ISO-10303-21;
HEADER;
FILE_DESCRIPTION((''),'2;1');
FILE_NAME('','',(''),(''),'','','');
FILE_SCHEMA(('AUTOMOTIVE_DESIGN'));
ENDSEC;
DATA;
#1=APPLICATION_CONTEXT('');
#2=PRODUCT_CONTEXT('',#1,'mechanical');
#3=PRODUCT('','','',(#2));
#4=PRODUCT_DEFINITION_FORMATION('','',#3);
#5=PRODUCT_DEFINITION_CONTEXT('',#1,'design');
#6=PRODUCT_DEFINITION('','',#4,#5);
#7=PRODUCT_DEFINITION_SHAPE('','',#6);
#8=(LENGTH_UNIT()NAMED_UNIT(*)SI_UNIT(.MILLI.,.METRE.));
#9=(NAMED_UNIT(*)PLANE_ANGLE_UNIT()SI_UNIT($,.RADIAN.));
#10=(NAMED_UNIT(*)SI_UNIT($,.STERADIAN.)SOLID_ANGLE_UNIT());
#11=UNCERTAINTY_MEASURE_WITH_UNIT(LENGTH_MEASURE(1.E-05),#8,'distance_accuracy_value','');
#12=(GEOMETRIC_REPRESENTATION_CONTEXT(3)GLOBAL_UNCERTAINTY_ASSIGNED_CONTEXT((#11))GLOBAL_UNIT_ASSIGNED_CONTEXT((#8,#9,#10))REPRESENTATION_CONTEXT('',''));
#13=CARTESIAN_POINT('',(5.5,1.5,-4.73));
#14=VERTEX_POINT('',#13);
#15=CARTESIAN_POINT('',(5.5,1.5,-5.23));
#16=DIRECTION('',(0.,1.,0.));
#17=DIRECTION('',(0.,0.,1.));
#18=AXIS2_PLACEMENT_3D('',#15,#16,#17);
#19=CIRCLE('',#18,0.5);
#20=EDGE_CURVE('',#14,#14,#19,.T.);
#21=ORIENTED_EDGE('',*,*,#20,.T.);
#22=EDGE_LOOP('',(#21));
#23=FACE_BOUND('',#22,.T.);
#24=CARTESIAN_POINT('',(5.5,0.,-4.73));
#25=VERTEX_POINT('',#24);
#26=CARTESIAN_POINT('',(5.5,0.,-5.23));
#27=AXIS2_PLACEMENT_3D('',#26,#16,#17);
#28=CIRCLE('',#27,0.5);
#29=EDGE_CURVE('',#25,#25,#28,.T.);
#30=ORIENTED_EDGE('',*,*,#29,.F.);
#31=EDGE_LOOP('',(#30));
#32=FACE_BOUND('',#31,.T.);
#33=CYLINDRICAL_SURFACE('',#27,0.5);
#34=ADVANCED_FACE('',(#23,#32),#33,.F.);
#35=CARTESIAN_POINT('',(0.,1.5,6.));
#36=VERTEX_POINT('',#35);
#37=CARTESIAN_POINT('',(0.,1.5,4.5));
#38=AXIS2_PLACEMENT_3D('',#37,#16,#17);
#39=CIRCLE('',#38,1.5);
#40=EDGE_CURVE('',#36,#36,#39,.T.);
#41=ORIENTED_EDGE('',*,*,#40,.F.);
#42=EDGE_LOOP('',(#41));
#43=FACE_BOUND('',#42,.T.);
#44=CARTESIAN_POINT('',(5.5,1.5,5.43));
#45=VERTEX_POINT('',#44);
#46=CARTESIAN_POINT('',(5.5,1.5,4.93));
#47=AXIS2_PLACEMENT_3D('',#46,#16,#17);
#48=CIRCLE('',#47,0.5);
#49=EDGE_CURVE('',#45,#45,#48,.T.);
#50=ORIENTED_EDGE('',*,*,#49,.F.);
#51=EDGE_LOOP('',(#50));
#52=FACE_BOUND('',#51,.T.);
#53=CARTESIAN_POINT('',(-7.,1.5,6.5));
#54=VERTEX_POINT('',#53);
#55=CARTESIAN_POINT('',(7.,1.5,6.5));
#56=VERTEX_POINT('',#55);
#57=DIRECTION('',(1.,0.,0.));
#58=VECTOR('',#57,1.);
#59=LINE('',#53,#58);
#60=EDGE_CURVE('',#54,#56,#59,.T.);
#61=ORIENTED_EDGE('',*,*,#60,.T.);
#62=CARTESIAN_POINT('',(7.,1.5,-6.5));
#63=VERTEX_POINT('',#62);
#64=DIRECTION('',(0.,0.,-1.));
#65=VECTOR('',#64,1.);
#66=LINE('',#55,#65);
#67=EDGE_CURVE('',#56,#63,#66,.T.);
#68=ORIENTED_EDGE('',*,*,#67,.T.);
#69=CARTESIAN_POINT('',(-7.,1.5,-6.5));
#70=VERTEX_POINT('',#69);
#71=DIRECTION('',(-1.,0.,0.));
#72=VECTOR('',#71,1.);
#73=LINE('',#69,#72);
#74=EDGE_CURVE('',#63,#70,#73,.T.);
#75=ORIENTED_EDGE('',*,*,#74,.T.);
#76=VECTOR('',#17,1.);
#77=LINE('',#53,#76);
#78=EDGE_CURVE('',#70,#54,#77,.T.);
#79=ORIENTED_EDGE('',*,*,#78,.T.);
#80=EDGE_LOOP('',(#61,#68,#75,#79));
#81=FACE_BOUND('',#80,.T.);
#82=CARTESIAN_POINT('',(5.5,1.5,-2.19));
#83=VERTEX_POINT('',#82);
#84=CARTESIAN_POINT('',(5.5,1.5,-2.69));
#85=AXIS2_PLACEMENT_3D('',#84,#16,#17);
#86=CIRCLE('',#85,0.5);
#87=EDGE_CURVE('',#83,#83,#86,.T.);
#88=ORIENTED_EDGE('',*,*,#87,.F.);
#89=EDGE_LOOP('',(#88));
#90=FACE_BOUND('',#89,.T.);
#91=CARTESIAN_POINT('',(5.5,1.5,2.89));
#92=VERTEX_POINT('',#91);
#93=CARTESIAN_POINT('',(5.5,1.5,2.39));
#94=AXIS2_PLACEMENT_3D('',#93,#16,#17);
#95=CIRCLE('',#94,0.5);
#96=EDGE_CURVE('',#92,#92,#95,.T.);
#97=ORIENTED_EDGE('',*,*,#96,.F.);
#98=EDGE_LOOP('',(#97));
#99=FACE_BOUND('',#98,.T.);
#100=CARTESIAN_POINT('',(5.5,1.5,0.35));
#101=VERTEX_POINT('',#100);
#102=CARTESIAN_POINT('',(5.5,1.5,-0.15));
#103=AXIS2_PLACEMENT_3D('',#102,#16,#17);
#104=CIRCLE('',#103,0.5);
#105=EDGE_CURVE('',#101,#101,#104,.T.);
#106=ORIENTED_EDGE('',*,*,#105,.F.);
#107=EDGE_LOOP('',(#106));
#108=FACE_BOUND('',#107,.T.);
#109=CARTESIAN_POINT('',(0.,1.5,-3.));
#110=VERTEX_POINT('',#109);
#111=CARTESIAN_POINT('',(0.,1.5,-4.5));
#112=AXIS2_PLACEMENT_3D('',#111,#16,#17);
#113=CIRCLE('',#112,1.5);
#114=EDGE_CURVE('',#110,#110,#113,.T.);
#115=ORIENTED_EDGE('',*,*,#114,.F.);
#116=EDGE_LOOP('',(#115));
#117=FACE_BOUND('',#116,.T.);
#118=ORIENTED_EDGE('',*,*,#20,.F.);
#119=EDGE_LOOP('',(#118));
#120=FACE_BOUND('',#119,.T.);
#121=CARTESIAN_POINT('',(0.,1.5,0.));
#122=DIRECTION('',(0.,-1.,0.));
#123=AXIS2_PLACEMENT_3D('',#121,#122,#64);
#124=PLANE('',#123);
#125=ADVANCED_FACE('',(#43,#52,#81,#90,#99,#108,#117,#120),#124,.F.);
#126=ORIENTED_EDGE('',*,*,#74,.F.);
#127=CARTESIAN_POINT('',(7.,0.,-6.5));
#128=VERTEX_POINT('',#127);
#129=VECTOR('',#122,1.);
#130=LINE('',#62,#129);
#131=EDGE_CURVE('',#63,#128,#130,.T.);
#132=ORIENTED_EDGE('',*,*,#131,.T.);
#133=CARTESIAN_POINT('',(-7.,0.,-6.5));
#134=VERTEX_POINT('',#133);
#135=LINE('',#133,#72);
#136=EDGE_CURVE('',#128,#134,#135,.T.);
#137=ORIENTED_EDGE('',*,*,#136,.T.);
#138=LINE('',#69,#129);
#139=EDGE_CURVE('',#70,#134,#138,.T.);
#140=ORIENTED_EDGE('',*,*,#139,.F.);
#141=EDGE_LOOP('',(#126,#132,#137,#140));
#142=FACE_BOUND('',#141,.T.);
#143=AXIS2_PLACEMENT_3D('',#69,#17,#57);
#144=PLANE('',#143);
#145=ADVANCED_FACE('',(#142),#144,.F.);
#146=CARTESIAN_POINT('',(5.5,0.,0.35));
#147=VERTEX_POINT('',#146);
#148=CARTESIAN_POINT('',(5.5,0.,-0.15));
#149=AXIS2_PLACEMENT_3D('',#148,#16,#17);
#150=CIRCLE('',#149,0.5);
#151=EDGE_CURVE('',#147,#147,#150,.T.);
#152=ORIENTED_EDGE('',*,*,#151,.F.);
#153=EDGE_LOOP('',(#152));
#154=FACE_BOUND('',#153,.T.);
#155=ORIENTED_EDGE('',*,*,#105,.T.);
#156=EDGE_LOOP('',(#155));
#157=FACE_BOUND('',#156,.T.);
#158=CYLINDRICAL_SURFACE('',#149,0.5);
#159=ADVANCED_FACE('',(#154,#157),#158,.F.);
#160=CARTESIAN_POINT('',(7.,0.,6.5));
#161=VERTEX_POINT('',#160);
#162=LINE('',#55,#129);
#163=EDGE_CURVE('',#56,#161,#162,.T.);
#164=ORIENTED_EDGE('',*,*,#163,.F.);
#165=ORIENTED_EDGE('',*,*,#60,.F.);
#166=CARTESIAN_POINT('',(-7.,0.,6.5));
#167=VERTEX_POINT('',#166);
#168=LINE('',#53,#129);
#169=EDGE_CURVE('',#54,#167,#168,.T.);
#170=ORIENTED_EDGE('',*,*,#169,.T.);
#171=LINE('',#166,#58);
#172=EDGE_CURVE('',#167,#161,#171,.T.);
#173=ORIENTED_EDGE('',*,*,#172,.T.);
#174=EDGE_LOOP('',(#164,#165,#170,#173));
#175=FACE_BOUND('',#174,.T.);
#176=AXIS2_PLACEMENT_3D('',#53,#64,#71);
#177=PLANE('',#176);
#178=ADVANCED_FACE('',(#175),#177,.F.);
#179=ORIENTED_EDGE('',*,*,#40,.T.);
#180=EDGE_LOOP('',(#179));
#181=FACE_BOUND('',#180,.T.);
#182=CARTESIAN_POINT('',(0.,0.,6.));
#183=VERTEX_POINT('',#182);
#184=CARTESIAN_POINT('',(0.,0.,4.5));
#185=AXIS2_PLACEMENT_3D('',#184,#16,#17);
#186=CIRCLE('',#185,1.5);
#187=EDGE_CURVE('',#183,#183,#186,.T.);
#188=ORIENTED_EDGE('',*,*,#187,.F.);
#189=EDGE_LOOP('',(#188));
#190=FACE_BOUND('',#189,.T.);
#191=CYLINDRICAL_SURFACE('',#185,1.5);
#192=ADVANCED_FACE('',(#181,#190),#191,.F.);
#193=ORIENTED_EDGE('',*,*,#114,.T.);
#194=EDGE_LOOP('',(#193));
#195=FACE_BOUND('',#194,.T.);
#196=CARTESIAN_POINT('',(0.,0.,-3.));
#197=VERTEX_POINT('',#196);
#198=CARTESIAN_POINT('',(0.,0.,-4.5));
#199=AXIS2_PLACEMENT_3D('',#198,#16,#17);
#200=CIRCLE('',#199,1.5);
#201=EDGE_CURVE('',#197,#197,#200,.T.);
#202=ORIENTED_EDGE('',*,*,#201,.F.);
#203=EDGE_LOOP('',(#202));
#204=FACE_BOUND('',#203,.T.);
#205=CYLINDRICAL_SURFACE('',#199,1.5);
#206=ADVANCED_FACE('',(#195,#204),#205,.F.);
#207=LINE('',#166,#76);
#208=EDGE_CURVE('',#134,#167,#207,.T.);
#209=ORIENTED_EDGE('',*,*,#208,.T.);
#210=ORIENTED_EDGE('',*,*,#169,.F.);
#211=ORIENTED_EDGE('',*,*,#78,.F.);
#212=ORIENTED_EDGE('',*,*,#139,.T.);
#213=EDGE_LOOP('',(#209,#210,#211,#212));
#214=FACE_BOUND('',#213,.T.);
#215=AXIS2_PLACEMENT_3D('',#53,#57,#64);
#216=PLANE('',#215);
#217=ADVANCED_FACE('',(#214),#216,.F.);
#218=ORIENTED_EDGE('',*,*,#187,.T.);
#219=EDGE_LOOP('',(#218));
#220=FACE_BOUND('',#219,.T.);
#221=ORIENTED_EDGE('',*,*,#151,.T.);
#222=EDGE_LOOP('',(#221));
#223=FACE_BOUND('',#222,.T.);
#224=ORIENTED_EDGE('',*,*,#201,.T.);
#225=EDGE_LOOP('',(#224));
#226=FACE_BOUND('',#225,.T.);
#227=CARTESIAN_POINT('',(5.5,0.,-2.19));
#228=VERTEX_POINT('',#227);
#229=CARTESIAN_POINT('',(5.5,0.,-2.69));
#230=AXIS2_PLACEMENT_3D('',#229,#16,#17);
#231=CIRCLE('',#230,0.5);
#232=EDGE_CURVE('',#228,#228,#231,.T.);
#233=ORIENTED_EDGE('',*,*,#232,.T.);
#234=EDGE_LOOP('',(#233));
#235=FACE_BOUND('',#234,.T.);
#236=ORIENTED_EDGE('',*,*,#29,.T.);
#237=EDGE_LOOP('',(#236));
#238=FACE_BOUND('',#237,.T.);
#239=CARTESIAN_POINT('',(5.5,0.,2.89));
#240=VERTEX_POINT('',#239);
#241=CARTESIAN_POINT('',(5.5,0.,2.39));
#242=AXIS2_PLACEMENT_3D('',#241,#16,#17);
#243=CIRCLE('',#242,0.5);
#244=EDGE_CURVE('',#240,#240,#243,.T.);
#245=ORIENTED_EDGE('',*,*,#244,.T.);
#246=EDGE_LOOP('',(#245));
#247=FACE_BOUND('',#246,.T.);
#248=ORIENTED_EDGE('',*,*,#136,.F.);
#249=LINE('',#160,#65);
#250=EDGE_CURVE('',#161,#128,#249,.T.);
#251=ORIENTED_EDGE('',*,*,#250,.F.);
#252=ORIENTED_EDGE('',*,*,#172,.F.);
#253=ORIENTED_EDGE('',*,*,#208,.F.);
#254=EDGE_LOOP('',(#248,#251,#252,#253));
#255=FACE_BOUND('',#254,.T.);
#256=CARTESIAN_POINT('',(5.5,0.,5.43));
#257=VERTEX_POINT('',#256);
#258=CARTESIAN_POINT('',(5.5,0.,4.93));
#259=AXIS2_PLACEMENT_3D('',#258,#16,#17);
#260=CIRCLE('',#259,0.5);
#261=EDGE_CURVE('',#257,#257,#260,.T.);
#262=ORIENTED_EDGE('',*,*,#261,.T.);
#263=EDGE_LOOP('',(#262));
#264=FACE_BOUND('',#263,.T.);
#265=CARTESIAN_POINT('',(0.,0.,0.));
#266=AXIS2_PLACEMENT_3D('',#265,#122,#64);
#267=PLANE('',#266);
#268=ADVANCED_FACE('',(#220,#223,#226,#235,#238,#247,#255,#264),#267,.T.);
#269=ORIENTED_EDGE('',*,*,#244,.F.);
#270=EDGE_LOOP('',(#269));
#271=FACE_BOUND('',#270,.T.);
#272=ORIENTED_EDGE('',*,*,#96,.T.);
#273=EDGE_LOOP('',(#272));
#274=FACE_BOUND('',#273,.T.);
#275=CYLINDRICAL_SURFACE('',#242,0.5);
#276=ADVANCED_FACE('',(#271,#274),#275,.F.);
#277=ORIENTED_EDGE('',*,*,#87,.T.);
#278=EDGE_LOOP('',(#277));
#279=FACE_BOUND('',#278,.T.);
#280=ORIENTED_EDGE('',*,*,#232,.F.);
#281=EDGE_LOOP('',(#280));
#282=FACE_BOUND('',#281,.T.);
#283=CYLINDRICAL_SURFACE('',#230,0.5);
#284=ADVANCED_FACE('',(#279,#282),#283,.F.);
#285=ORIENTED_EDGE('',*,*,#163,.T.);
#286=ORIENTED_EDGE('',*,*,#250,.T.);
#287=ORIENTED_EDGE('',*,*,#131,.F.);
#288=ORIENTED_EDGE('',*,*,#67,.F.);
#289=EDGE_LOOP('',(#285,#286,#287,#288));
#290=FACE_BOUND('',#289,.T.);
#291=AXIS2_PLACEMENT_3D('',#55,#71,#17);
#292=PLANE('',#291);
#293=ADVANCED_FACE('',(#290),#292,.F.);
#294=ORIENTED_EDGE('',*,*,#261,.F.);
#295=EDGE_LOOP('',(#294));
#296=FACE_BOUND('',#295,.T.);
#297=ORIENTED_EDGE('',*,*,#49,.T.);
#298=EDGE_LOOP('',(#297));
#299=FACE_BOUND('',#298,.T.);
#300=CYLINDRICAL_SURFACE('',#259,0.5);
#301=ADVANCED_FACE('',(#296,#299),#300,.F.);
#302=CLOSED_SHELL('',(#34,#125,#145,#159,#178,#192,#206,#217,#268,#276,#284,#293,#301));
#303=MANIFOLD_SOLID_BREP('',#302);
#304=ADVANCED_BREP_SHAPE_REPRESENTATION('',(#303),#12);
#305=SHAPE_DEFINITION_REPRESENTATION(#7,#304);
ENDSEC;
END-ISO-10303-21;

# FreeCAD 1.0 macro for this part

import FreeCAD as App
import Part
import Sketcher
from FreeCAD import Vector
Q = App.Units.Quantity

doc = App.newDocument("Part")
body = doc.addObject("PartDesign::Body", "Body")

# Sketch on XZ plane
sketch1 = body.newObject("Sketcher::SketchObject", "Sketch")
sketch1.AttachmentSupport = (doc.getObject("XZ_Plane"), [""])
sketch1.MapMode = "FlatFace"
sketch1.addGeometry([
    Part.LineSegment(Vector(-7, -6, 0), Vector(-7, 6, 0)),
    Part.LineSegment(Vector(-7, 6, 0), Vector(7, 6, 0)),
    Part.LineSegment(Vector(7, 6, 0), Vector(7, -6, 0)),
    Part.LineSegment(Vector(7, -6, 0), Vector(-7, -6, 0)),
], False)
sketch1.addConstraint([
    Sketcher.Constraint("Coincident", 0, 2, 1, 1),
    Sketcher.Constraint("Coincident", 1, 2, 2, 1),
    Sketcher.Constraint("Coincident", 2, 2, 3, 1),
    Sketcher.Constraint("Coincident", 3, 2, 0, 1),
    Sketcher.Constraint("Vertical", 0),
    Sketcher.Constraint("Horizontal", 1),
    Sketcher.Constraint("Vertical", 2),
    Sketcher.Constraint("Horizontal", 3),
    Sketcher.Constraint("Symmetric", 0, 2, 2, 2, -1, 1),
    Sketcher.Constraint("DistanceX", 1, 1, 1, 2, Q("14 mm")),
    Sketcher.Constraint("DistanceY", 0, 1, 0, 2, Q("13 mm")),
])
pad1 = body.newObject("PartDesign::Pad", "Pad")
pad1.Profile = sketch1
pad1.Length = 1.5
pad1.Reversed = True

# Sketch on XZ plane
sketch2 = body.newObject("Sketcher::SketchObject", "Sketch001")
sketch2.AttachmentSupport = (doc.getObject("XZ_Plane"), [""])
sketch2.MapMode = "FlatFace"
sketch2.AttachmentOffset = App.Placement(Vector(0, 0, -1.5), App.Rotation())
sketch2.addGeometry([
    Part.Circle(Vector(0, -4.5, 0), Vector(0, 0, 1), 1.5),  # 0
    Part.Circle(Vector(0, 4.5, 0), Vector(0, 0, 1), 1.5),  # 1
    Part.Circle(Vector(5.5, 4.9, 0), Vector(0, 0, 1), 0.5),  # 2
    Part.Circle(Vector(5.5, 2.4, 0), Vector(0, 0, 1), 0.5),  # 3
    Part.Circle(Vector(5.5, -0.1, 0), Vector(0, 0, 1), 0.5),  # 4
    Part.Circle(Vector(5.5, -2.7, 0), Vector(0, 0, 1), 0.5),  # 5
    Part.Circle(Vector(5.5, -5.2, 0), Vector(0, 0, 1), 0.5),  # 6
], False)
sketch2.addConstraint([
    Sketcher.Constraint("Equal", 0, 1),
    Sketcher.Constraint("Equal", 2, 3),
    Sketcher.Constraint("Equal", 3, 4),
    Sketcher.Constraint("Equal", 4, 5),
    Sketcher.Constraint("Equal", 5, 6),
    Sketcher.Constraint("Symmetric", 0, 3, 1, 3, -1, 1),
    Sketcher.Constraint("PointOnObject", 0, 3, -2),
    Sketcher.Constraint("Vertical", 2, 3, 3, 3),
    Sketcher.Constraint("Vertical", 3, 3, 4, 3),
    Sketcher.Constraint("Vertical", 4, 3, 5, 3),
    Sketcher.Constraint("Vertical", 5, 3, 6, 3),
    Sketcher.Constraint("Diameter", 0, Q("3 mm")),
    Sketcher.Constraint("Diameter", 2, Q("1 mm")),
    Sketcher.Constraint("DistanceY", 0, 3, 1, 3, Q("9 mm")),
    Sketcher.Constraint("DistanceX", -1, 1, 2, 3, Q("5.5 mm")),
    Sketcher.Constraint("DistanceY", -1, 1, 2, 3, Q("4.93 mm")),
    Sketcher.Constraint("DistanceY", -1, 1, 3, 3, Q("2.39 mm")),
    Sketcher.Constraint("DistanceY", 4, 3, -1, 1, Q("0.15 mm")),
    Sketcher.Constraint("DistanceY", 5, 3, -1, 1, Q("2.69 mm")),
    Sketcher.Constraint("DistanceY", 6, 3, -1, 1, Q("5.23 mm")),
])
pocket1 = body.newObject("PartDesign::Pocket", "Pocket")
pocket1.Profile = sketch2
pocket1.Length = 1.5
pocket1.Reversed = True

doc.recompute()
